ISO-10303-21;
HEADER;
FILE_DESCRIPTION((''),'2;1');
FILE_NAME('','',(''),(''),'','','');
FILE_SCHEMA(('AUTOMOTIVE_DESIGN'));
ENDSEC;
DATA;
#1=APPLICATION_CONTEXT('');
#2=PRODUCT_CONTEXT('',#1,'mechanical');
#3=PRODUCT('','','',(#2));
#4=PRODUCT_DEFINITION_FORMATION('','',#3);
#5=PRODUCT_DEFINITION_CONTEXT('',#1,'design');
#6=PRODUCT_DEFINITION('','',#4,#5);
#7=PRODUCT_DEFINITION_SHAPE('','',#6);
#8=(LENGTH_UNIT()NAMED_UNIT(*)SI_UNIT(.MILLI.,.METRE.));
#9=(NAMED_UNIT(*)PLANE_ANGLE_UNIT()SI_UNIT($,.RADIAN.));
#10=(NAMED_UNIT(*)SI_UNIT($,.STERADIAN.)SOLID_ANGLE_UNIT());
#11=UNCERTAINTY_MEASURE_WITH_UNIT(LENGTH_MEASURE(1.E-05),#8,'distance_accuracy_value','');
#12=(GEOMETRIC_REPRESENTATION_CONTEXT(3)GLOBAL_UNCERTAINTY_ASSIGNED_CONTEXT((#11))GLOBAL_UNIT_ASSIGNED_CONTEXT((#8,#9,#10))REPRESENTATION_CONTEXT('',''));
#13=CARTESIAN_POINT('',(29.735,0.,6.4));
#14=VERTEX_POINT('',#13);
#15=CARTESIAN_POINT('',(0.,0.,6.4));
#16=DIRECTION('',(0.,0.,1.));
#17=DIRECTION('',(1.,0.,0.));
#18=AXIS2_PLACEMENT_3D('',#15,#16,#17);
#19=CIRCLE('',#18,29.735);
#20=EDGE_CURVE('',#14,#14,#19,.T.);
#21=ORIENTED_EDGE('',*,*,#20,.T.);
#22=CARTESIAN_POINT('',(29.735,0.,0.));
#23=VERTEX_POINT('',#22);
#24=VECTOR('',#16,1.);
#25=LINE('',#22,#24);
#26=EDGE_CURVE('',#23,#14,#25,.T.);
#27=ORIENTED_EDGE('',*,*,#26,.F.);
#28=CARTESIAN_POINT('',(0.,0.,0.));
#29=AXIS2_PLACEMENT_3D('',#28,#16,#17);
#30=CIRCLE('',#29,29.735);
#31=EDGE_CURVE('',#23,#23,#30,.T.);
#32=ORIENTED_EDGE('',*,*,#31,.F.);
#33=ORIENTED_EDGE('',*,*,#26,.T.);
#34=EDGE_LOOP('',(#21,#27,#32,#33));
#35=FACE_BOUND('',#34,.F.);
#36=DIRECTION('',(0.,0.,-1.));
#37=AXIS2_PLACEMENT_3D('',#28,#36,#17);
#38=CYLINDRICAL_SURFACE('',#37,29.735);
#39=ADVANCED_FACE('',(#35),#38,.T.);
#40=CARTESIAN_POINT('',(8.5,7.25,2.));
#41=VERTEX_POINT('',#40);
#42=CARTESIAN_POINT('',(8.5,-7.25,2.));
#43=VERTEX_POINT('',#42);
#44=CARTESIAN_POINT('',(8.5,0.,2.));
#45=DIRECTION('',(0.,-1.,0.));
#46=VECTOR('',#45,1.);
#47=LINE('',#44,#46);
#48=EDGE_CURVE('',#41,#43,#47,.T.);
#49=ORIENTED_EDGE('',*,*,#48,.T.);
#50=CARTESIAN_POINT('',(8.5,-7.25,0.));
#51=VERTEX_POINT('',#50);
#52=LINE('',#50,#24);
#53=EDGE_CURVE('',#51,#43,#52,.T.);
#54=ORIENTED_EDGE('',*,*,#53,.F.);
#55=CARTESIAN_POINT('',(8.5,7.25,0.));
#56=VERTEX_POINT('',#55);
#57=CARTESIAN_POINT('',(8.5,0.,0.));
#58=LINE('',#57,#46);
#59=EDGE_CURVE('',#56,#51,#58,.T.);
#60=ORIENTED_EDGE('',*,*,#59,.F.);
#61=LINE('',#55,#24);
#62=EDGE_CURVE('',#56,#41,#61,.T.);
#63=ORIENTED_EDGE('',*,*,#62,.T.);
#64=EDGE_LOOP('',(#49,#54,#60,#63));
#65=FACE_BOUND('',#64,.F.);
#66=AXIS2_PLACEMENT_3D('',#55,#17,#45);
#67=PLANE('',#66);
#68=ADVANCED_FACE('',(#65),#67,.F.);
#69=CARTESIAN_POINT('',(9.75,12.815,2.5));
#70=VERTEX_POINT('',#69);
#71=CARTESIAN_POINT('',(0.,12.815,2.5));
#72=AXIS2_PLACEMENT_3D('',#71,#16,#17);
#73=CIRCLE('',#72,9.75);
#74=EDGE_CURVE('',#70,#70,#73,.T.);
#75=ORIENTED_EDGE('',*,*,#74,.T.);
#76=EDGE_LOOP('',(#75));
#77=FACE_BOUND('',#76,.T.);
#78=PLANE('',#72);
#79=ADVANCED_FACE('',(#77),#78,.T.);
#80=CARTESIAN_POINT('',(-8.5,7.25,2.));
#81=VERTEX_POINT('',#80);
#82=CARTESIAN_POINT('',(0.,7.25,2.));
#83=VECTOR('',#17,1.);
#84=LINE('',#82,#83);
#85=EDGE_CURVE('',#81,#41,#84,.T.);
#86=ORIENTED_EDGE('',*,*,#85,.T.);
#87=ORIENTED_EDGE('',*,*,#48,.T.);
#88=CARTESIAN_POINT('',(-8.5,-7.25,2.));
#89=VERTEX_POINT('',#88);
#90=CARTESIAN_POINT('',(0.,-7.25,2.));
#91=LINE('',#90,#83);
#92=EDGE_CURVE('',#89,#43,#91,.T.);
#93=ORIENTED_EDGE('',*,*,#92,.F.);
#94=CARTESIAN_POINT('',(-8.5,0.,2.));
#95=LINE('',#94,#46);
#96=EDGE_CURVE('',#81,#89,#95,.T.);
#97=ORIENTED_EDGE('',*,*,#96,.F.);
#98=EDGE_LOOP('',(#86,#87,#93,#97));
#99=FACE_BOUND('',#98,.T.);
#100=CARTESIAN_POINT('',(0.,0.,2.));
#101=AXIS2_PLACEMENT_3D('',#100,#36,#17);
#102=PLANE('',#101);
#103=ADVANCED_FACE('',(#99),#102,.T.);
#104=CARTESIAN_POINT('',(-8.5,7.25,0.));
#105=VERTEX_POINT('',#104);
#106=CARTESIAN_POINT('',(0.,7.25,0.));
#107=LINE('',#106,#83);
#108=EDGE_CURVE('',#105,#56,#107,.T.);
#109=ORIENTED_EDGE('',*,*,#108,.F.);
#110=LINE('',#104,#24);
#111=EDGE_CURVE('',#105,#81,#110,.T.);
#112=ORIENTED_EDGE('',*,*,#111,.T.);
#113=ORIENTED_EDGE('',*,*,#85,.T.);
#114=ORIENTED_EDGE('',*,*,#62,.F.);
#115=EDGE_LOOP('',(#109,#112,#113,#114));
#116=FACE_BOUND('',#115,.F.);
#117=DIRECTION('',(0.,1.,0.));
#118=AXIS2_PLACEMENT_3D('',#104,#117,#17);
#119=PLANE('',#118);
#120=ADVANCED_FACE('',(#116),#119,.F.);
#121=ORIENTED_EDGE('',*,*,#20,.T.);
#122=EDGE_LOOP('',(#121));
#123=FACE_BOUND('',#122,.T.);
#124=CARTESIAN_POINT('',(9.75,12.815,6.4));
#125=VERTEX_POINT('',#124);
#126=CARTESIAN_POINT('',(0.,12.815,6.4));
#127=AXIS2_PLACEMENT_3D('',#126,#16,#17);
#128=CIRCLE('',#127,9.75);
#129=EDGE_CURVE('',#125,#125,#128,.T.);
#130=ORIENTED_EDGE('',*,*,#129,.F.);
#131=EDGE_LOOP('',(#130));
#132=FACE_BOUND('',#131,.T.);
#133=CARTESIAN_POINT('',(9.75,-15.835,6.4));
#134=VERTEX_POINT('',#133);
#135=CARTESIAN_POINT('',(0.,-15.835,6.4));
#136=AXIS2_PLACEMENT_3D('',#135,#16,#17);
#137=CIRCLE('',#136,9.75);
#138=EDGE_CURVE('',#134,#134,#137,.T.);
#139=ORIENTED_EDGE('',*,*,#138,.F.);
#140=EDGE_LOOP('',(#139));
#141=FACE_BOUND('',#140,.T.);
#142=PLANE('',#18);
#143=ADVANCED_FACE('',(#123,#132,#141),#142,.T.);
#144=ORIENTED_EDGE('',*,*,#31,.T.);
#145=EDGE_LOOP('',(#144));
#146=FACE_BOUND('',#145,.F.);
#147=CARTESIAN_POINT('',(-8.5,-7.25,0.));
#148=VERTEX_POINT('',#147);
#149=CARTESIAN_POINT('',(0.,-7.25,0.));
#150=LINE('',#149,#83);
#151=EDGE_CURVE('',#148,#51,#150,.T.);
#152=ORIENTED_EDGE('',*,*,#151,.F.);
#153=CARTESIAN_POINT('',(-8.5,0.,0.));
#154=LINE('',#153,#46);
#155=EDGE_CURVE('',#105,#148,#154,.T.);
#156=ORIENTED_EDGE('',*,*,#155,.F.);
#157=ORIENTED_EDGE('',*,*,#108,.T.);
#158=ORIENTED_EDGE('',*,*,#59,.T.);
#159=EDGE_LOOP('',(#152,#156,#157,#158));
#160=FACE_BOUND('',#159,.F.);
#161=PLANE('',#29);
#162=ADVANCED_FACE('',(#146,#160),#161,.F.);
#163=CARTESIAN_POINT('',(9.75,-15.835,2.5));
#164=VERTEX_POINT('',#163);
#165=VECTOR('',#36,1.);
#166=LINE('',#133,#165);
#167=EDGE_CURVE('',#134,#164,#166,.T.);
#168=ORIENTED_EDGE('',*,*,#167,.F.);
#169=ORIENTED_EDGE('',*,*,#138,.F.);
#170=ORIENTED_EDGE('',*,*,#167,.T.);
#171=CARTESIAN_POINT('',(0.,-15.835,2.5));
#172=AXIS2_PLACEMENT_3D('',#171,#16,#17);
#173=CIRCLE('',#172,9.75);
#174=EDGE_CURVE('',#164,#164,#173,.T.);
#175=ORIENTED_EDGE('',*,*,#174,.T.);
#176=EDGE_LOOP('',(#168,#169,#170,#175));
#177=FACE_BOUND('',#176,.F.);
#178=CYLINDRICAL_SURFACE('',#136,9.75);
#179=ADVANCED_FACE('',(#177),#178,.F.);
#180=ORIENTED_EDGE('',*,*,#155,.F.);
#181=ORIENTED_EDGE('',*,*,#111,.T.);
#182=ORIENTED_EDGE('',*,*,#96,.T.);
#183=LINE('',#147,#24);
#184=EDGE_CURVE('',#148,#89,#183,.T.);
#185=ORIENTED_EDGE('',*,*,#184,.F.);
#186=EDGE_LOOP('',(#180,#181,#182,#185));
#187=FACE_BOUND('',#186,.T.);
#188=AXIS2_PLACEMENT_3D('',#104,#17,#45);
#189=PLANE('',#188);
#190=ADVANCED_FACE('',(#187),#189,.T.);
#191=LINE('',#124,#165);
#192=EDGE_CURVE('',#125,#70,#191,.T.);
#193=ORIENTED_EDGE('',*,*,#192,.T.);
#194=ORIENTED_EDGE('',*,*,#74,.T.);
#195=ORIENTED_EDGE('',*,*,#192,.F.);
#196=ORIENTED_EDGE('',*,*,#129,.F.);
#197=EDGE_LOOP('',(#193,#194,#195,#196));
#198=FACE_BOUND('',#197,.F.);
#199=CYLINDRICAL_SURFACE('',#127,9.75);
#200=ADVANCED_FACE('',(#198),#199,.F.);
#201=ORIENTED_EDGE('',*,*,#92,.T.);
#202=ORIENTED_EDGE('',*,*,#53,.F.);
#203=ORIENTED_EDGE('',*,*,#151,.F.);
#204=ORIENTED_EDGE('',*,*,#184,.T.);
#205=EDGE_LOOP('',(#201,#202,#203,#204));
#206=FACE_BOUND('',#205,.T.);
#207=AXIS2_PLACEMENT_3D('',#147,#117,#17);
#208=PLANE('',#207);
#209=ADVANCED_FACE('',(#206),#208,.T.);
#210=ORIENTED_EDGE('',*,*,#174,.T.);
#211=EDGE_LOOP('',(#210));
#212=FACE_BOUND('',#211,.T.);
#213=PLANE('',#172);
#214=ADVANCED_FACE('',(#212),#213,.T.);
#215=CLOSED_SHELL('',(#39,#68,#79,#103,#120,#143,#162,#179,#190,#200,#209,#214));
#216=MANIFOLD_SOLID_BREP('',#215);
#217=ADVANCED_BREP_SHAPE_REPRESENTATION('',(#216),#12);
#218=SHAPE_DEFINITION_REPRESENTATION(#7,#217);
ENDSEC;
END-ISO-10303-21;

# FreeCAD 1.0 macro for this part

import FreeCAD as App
import Part
import Sketcher

V = App.Vector


def add_polygon(sketch, points):
    """Adds a closed chain of lines whose ends are joined by coincident constraints."""
    first, n = sketch.GeometryCount, len(points)
    for a, b in zip(points, points[1:] + points[:1]):
        sketch.addGeometry(Part.LineSegment(App.Vector(*a, 0), App.Vector(*b, 0)), False)
    for i in range(n):
        sketch.addConstraint(Sketcher.Constraint("Coincident", first + i, 2, first + (i + 1) % n, 1))

doc = App.newDocument("Part")
params = doc.addObject("Spreadsheet::Sheet", "Params")
for row, (alias, value) in enumerate([
    ("sketch1_diameter", "59.47 mm"),
    ("pad1_length", "6.4 mm"),
    ("sketch2_diameter", "19.5 mm"),
    ("pocket1_length", "3.9 mm"),
    ("sketch3_width", "17 mm"),
    ("sketch3_height", "14.5 mm"),
    ("pocket2_length", "2 mm"),
], start=1):
    params.set(f"A{row}", alias)
    params.set(f"B{row}", "=" + value)
    params.setAlias(f"B{row}", alias)

body = doc.addObject("PartDesign::Body", "Body")

sketch1 = body.newObject("Sketcher::SketchObject", "Sketch")
sketch1.AttachmentSupport = (doc.getObject("XY_Plane"), [""])
sketch1.MapMode = "FlatFace"
sketch1.addGeometry(Part.Circle(V(0, 0, 0), V(0, 0, 1), 30), False)
sketch1.addConstraint([
    Sketcher.Constraint("Coincident", 0, 3, -1, 1),
    Sketcher.Constraint("Diameter", 0, 59.47),
])
sketch1.setExpression("Constraints[1]", "Params.sketch1_diameter")
pad1 = body.newObject("PartDesign::Pad", "Pad")
pad1.Profile = sketch1
pad1.setExpression("Length", "Params.pad1_length")

sketch2 = body.newObject("Sketcher::SketchObject", "Sketch001")
sketch2.AttachmentSupport = (doc.getObject("XY_Plane"), [""])
sketch2.MapMode = "FlatFace"
sketch2.AttachmentOffset = App.Placement(V(0, 0, 6.4), App.Rotation())
sketch2.addGeometry([
    Part.Circle(V(0, 13, 0), V(0, 0, 1), 10),
    Part.Circle(V(0, -16, 0), V(0, 0, 1), 10),
], False)
sketch2.addConstraint([
    Sketcher.Constraint("Equal", 0, 1),
    Sketcher.Constraint("PointOnObject", 0, 3, -2),
    Sketcher.Constraint("PointOnObject", 1, 3, -2),
    Sketcher.Constraint("Diameter", 0, 19.5),
    Sketcher.Constraint("DistanceY", 1, 3, 0, 3, 28.65),
    Sketcher.Constraint("DistanceY", -1, 1, 0, 3, 12.815),
])
sketch2.setExpression("Constraints[3]", "Params.sketch2_diameter")
pocket1 = body.newObject("PartDesign::Pocket", "Pocket")
pocket1.Profile = sketch2
pocket1.setExpression("Length", "Params.pocket1_length")

sketch3 = body.newObject("Sketcher::SketchObject", "Sketch002")
sketch3.AttachmentSupport = (doc.getObject("XY_Plane"), [""])
sketch3.MapMode = "FlatFace"
add_polygon(sketch3, [(-8, -7), (-8, 7), (8, 7), (8, -7)])
sketch3.addConstraint([
    Sketcher.Constraint("Vertical", 0),
    Sketcher.Constraint("Horizontal", 1),
    Sketcher.Constraint("Vertical", 2),
    Sketcher.Constraint("Horizontal", 3),
    Sketcher.Constraint("Symmetric", 0, 2, 2, 2, -1, 1),
    Sketcher.Constraint("DistanceX", 1, 1, 1, 2, 17.0),
    Sketcher.Constraint("DistanceY", 0, 1, 0, 2, 14.5),
])
sketch3.setExpression("Constraints[9]", "Params.sketch3_width")
sketch3.setExpression("Constraints[10]", "Params.sketch3_height")
pocket2 = body.newObject("PartDesign::Pocket", "Pocket001")
pocket2.Profile = sketch3
pocket2.setExpression("Length", "Params.pocket2_length")
pocket2.Reversed = True

doc.recompute()
